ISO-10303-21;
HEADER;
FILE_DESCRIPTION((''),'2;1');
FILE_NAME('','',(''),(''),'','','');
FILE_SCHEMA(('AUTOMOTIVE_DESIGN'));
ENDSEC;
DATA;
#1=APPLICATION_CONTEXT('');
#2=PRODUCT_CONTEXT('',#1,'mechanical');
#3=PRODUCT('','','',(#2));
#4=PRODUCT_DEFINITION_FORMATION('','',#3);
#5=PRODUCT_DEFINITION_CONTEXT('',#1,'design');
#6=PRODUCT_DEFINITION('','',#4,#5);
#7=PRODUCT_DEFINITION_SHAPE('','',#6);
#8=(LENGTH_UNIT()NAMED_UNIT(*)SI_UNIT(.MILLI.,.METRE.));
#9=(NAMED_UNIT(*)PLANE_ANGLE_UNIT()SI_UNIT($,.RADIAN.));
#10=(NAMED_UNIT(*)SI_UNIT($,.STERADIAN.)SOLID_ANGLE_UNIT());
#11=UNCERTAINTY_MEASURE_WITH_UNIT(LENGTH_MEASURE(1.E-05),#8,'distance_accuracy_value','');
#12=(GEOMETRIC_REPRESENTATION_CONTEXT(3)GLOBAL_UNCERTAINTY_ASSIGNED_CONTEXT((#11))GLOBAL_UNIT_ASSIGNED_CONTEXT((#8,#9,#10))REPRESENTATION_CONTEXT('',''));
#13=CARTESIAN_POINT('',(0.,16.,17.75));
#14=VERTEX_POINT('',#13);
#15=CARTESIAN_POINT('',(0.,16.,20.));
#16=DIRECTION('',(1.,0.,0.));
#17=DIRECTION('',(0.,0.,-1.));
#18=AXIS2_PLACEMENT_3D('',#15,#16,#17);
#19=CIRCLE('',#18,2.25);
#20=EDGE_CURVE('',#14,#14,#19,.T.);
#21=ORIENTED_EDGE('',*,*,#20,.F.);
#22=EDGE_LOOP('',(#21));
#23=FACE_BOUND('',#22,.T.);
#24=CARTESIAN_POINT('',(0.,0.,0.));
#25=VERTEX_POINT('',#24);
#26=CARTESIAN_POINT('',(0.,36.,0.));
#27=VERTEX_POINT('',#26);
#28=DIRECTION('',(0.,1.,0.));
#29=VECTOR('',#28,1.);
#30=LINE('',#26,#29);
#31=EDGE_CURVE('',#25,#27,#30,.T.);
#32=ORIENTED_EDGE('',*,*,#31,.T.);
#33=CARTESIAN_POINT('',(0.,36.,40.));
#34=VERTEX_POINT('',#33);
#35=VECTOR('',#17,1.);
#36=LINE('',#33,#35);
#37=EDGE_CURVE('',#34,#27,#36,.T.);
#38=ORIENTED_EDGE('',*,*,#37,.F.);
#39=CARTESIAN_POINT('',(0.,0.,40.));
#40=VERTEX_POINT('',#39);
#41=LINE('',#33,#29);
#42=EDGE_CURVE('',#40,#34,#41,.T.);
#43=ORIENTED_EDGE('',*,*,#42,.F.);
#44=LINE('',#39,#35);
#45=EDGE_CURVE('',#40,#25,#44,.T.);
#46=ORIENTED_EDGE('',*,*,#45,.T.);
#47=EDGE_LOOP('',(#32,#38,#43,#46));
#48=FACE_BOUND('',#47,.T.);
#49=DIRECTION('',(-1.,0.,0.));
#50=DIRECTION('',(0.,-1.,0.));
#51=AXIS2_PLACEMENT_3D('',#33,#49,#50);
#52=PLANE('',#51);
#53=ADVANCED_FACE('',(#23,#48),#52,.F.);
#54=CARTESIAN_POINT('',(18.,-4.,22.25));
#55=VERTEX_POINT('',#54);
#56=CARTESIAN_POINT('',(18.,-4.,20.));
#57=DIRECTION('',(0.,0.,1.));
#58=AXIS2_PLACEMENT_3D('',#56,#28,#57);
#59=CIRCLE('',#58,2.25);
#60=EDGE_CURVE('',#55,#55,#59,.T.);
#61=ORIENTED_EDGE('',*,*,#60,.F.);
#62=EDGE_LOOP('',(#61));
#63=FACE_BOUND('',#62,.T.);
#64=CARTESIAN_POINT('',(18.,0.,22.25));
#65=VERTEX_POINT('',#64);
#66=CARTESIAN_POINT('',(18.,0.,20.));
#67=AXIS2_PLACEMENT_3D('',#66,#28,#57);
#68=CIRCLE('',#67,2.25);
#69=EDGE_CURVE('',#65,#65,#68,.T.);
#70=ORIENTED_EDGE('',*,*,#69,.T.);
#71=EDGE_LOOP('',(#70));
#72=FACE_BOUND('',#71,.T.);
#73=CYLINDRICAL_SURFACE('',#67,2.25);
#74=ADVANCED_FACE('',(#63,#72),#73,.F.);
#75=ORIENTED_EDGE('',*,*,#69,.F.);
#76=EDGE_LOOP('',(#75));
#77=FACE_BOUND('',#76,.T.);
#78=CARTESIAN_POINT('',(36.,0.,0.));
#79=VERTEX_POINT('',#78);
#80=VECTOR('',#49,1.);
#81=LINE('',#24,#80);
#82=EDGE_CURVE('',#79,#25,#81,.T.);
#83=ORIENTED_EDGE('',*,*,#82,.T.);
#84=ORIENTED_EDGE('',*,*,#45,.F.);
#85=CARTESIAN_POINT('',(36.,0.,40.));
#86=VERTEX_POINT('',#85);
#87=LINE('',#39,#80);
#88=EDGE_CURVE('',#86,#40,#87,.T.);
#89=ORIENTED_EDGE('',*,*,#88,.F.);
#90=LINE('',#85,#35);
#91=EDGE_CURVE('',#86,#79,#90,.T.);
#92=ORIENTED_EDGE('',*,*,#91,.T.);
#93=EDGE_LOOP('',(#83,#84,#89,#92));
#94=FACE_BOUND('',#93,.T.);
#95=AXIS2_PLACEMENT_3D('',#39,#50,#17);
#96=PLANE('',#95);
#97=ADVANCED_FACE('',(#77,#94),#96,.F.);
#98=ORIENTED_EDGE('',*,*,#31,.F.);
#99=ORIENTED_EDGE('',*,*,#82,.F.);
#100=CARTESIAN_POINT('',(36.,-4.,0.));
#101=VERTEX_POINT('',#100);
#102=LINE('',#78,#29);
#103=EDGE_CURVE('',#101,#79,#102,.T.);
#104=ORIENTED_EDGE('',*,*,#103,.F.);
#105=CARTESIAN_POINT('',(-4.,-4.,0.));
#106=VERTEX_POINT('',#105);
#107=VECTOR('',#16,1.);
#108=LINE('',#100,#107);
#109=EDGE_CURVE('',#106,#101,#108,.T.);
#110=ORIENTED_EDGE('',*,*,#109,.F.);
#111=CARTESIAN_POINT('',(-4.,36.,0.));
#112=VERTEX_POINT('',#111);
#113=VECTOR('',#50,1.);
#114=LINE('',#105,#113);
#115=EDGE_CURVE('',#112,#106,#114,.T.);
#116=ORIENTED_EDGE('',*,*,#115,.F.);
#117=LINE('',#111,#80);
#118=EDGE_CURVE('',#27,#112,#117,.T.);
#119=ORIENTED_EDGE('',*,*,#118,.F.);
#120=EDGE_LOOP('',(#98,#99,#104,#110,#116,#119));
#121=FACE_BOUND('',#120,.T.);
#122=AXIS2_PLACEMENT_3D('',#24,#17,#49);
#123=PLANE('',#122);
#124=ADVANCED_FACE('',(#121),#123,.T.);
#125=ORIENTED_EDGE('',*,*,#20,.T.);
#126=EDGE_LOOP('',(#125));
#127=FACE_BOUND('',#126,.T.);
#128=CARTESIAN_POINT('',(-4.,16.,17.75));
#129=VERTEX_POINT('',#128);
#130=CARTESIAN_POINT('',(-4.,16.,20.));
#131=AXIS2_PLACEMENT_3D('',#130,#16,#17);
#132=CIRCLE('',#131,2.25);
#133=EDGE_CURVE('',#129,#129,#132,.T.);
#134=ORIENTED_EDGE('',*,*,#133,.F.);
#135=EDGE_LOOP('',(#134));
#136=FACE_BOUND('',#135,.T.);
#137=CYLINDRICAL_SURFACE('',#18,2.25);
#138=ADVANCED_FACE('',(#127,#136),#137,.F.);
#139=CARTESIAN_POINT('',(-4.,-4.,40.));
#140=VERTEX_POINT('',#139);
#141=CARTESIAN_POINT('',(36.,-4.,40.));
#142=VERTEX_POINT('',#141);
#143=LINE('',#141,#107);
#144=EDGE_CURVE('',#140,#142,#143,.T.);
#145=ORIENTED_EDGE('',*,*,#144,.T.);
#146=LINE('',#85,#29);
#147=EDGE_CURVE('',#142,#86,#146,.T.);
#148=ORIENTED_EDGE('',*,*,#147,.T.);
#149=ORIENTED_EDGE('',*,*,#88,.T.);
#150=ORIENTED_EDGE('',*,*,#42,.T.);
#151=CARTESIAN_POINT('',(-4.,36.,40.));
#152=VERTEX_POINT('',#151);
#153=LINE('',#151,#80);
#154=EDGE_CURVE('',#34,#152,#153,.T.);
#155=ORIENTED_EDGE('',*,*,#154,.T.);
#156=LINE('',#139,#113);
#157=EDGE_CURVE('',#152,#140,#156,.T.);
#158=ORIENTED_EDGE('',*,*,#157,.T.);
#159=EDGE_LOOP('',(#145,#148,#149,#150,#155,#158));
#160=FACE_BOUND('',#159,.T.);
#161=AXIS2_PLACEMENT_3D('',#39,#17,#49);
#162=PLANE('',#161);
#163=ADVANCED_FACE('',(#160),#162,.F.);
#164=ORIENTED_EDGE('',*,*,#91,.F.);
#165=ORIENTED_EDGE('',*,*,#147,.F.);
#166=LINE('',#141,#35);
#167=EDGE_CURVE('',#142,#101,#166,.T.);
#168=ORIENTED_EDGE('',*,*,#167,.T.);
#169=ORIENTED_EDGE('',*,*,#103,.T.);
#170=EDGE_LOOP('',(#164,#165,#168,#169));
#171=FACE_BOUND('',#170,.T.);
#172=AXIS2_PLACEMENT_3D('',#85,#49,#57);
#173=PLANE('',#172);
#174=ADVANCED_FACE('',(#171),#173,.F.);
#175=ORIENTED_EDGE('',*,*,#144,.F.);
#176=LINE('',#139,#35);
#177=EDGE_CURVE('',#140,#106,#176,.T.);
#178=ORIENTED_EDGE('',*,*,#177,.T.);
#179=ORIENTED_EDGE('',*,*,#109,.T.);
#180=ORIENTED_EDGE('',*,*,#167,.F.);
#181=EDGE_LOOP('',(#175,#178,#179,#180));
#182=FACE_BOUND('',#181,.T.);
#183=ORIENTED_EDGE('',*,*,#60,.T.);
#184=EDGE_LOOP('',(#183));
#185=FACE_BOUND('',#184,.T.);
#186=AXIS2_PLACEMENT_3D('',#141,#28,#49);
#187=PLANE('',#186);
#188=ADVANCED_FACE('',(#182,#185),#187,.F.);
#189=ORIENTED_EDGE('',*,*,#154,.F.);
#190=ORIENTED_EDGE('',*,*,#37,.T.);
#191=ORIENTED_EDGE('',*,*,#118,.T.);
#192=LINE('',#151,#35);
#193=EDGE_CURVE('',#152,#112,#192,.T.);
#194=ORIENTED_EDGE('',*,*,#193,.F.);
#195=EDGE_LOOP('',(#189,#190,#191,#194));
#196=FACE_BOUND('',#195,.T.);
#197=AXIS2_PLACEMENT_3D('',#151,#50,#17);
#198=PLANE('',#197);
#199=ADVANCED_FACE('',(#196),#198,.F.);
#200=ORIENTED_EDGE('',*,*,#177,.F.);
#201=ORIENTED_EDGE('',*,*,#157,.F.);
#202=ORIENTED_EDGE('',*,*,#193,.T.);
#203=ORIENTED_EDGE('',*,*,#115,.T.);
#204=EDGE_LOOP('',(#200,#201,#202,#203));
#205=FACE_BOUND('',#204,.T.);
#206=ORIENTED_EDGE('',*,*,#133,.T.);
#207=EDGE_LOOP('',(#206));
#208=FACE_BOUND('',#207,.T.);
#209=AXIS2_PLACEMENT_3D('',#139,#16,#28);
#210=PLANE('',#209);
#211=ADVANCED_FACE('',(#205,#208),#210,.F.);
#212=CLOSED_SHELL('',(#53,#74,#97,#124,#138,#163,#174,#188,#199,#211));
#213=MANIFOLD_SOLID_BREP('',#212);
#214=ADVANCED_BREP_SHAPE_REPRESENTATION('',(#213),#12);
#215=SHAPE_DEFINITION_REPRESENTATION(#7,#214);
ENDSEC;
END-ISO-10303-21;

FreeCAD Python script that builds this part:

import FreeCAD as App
import Part
import Sketcher

doc = App.newDocument("Part")
body = doc.addObject("PartDesign::Body", "Body")

sketch1 = doc.addObject("Sketcher::SketchObject", "Sketch")
body.addObject(sketch1)
sketch1.AttachmentSupport = (doc.XY_Plane, [""])
sketch1.MapMode = "FlatFace"
sketch1.addGeometry([
    Part.LineSegment(App.Vector(0, 0, 0), App.Vector(0, 36, 0)),
    Part.LineSegment(App.Vector(0, 36, 0), App.Vector(-4, 36, 0)),
    Part.LineSegment(App.Vector(-4, 36, 0), App.Vector(-4, -4, 0)),
    Part.LineSegment(App.Vector(-4, -4, 0), App.Vector(36, -4, 0)),
    Part.LineSegment(App.Vector(36, -4, 0), App.Vector(36, 0, 0)),
    Part.LineSegment(App.Vector(36, 0, 0), App.Vector(0, 0, 0)),
], False)
sketch1.addConstraint([
    Sketcher.Constraint("Coincident", 0, 2, 1, 1),
    Sketcher.Constraint("Coincident", 1, 2, 2, 1),
    Sketcher.Constraint("Coincident", 2, 2, 3, 1),
    Sketcher.Constraint("Coincident", 3, 2, 4, 1),
    Sketcher.Constraint("Coincident", 4, 2, 5, 1),
    Sketcher.Constraint("Coincident", 5, 2, 0, 1),
    Sketcher.Constraint("Vertical", 0),
    Sketcher.Constraint("Horizontal", 1),
    Sketcher.Constraint("Vertical", 2),
    Sketcher.Constraint("Horizontal", 3),
    Sketcher.Constraint("Vertical", 4),
    Sketcher.Constraint("Horizontal", 5),
    Sketcher.Constraint("Coincident", 5, 2, -1, 1),
    Sketcher.Constraint("Equal", 5, 0),
    Sketcher.Constraint("Equal", 3, 2),
    Sketcher.Constraint("DistanceX", 1, 2, 1, 1, 4.0),
    Sketcher.Constraint("DistanceX", 3, 1, 3, 2, 40.0),
])
pad1 = doc.addObject("PartDesign::Pad", "Pad")
body.addObject(pad1)
pad1.Profile = sketch1
pad1.Length = 40

sketch2 = doc.addObject("Sketcher::SketchObject", "Sketch001")
body.addObject(sketch2)
sketch2.AttachmentSupport = (doc.XZ_Plane, [""])
sketch2.MapMode = "FlatFace"
sketch2.addGeometry(Part.Circle(App.Vector(18, 20, 0), App.Vector(0, 0, 1), 2.2), False)
sketch2.addConstraint([
    Sketcher.Constraint("Diameter", 0, 4.5),
    Sketcher.Constraint("DistanceX", -1, 1, 0, 3, 18.0),
    Sketcher.Constraint("DistanceY", -1, 1, 0, 3, 20.0),
])
doc.recompute()
hole = doc.addObject("PartDesign::Hole", "Hole")
body.addObject(hole)
hole.Profile = sketch2
hole.ThreadType = "None"
hole.Diameter = 4.5
hole.DepthType = "ThroughAll"
hole.Reversed = True

sketch3 = doc.addObject("Sketcher::SketchObject", "Sketch002")
body.addObject(sketch3)
sketch3.AttachmentSupport = (doc.YZ_Plane, [""])
sketch3.MapMode = "FlatFace"
sketch3.addGeometry(Part.Circle(App.Vector(16, 20, 0), App.Vector(0, 0, 1), 2.2), False)
sketch3.addConstraint([
    Sketcher.Constraint("Diameter", 0, 4.5),
    Sketcher.Constraint("DistanceX", -1, 1, 0, 3, 16.0),
    Sketcher.Constraint("DistanceY", -1, 1, 0, 3, 20.0),
])
doc.recompute()
hole2 = doc.addObject("PartDesign::Hole", "Hole001")
body.addObject(hole2)
hole2.Profile = sketch3
hole2.ThreadType = "None"
hole2.Diameter = 4.5
hole2.DepthType = "ThroughAll"

doc.recompute()
